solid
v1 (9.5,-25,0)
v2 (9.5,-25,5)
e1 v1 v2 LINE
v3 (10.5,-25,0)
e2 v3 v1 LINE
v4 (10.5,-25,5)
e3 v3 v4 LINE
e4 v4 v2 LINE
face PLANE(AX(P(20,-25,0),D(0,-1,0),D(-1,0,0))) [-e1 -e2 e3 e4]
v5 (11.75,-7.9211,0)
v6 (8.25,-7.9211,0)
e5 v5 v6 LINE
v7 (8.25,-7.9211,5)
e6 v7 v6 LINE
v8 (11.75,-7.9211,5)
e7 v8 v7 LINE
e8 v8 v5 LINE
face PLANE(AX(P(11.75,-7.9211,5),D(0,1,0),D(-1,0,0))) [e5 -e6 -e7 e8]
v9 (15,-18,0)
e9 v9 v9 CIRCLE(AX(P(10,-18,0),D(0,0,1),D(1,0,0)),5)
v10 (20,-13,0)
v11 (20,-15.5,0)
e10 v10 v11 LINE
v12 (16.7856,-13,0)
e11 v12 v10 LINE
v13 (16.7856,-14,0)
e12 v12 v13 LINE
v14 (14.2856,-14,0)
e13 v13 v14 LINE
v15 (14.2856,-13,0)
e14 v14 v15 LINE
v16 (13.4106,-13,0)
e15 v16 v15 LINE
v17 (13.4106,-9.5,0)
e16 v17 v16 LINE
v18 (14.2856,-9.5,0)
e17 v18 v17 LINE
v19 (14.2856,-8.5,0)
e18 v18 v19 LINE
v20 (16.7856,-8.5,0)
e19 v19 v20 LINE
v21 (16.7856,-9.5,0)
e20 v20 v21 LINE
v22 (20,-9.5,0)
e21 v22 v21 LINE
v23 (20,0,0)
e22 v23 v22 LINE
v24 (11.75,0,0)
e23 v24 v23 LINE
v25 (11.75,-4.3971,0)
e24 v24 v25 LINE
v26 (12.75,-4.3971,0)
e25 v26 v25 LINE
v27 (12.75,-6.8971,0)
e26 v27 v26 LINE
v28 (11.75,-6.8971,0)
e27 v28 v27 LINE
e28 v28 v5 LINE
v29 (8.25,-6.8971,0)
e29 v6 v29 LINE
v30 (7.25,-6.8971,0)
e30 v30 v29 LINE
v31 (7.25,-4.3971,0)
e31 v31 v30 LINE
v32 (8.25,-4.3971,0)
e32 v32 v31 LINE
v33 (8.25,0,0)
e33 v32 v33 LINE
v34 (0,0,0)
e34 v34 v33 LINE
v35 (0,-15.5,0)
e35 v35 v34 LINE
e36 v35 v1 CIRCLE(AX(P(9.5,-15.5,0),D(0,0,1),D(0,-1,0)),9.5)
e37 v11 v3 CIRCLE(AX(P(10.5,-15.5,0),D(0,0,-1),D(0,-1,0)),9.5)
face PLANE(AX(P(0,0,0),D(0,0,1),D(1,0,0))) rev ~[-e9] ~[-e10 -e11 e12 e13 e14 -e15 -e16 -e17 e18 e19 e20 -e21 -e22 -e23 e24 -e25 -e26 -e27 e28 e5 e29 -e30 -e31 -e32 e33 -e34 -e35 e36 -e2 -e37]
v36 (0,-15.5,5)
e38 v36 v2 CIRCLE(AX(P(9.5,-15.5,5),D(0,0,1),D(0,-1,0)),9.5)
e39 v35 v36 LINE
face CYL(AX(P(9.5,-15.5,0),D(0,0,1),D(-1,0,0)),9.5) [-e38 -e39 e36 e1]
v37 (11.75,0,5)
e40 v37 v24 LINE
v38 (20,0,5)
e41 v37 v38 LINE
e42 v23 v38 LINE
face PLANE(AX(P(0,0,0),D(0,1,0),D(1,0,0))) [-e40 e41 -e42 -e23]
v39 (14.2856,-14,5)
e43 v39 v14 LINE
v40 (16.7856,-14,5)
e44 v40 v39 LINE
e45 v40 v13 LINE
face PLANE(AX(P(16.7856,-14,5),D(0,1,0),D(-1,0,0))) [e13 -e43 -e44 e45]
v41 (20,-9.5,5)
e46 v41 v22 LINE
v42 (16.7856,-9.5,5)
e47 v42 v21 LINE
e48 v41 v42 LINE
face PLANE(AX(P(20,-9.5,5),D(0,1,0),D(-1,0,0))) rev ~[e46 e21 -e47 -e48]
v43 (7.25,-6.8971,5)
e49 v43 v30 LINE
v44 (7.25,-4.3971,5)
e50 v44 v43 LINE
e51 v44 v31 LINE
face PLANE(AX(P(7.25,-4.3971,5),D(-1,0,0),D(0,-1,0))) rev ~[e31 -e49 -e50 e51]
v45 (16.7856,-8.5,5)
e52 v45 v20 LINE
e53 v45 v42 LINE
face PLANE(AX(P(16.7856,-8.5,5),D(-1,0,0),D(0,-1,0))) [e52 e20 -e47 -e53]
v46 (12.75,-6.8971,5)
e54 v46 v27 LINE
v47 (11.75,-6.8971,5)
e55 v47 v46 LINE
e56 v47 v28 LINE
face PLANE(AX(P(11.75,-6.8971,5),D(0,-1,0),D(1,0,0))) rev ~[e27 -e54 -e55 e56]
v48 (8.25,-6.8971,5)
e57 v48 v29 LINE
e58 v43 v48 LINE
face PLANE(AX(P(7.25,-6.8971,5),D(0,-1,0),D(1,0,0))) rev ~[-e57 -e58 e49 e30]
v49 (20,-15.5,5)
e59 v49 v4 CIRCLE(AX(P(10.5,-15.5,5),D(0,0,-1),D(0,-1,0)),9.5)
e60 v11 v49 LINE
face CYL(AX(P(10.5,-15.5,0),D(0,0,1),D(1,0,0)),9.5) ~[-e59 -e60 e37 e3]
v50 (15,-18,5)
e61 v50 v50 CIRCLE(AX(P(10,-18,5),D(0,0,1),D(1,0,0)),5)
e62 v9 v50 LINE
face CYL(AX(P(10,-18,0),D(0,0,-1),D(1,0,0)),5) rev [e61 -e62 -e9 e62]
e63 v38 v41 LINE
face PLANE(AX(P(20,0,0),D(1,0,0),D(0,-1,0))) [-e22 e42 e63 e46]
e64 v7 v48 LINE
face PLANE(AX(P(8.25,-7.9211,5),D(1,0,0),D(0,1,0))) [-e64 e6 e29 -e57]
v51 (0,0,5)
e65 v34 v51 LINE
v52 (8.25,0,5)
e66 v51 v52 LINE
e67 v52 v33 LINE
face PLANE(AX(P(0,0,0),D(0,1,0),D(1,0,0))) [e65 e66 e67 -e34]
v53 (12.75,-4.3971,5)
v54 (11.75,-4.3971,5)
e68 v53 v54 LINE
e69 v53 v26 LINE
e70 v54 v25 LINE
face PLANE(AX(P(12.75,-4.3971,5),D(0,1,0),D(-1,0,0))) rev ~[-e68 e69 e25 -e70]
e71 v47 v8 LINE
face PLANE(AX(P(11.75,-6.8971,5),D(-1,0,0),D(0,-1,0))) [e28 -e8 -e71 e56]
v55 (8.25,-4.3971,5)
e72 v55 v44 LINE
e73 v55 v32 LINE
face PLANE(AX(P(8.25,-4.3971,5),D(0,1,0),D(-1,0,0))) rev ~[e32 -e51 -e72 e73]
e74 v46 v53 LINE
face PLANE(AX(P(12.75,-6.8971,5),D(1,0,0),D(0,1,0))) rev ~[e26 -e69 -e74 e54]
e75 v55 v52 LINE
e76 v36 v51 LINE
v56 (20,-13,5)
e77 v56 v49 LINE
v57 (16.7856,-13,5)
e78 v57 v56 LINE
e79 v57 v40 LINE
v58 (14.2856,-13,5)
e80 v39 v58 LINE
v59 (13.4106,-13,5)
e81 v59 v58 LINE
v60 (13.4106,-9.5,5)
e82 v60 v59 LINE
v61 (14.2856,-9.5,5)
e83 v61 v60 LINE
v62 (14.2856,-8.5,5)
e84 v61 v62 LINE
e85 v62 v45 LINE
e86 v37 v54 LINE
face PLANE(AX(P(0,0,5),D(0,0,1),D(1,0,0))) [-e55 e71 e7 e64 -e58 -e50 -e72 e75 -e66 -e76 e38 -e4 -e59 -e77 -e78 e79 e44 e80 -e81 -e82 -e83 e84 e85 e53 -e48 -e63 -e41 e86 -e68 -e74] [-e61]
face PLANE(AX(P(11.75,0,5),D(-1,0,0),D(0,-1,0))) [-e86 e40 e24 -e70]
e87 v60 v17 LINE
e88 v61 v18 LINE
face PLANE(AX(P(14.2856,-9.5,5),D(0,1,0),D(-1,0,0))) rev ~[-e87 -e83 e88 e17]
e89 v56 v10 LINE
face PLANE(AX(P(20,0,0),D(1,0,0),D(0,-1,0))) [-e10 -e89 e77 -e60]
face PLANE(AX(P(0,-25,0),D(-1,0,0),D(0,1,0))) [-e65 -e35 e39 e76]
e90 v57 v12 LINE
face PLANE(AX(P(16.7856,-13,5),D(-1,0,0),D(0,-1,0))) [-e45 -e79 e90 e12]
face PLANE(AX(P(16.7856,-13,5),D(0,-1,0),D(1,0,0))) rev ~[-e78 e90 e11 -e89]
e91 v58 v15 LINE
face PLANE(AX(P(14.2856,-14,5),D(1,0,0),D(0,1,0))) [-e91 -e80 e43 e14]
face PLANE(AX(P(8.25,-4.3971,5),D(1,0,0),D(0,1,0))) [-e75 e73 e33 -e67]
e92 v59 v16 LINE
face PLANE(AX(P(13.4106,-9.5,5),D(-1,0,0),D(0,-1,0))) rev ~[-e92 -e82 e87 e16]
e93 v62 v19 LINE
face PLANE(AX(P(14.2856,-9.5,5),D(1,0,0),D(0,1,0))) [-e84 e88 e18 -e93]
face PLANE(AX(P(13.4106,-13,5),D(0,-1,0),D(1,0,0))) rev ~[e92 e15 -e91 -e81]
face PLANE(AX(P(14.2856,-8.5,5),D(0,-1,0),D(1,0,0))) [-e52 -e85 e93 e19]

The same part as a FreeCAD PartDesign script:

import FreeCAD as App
import Part
import Sketcher


def edges_at(feature, points):
    """Names of the edges that pass closest to the given points."""
    edges = feature.Shape.Edges
    near = lambda p: min(range(len(edges)), key=lambda i: edges[i].distToShape(Part.Vertex(*p))[0])
    return sorted({f"Edge{near(p) + 1}" for p in points})


def add_polygon(sketch, points):
    """Adds a closed chain of lines whose ends are joined by coincident constraints."""
    first, n = sketch.GeometryCount, len(points)
    for a, b in zip(points, points[1:] + points[:1]):
        sketch.addGeometry(Part.LineSegment(App.Vector(*a, 0), App.Vector(*b, 0)), False)
    for i in range(n):
        sketch.addConstraint(Sketcher.Constraint("Coincident", first + i, 2, first + (i + 1) % n, 1))

doc = App.newDocument("Part")
params = doc.addObject("Spreadsheet::Sheet", "Params")
for row, (alias, value) in enumerate([
    ("sketch1_width", "20 mm"),
    ("sketch1_height", "25 mm"),
    ("sketch1_diameter", "10 mm"),
    ("pad1_length", "5 mm"),
    ("sketch2_width", "1 mm"),
    ("sketch2_width2", "3.5 mm"),
    ("sketch2_height", "2.5 mm"),
    ("sketch3_height", "1 mm"),
    ("sketch3_width", "2.5 mm"),
    ("sketch3_height2", "3.5 mm"),
    ("fillet_radius", "9.5 mm"),
], start=1):
    params.set(f"A{row}", alias)
    params.set(f"B{row}", "=" + value)
    params.setAlias(f"B{row}", alias)

body = doc.addObject("PartDesign::Body", "Body")

sketch1 = body.newObject("Sketcher::SketchObject", "Sketch")
sketch1.AttachmentSupport = (doc.getObject("XY_Plane"), [""])
sketch1.MapMode = "FlatFace"
add_polygon(sketch1, [(20, 0), (0, 0), (0, -25), (20, -25)])
sketch1.addGeometry(Part.Circle(App.Vector(10, -18, 0), App.Vector(0, 0, 1), 5), False)
sketch1.addConstraint([
    Sketcher.Constraint("Horizontal", 0),
    Sketcher.Constraint("Vertical", 1),
    Sketcher.Constraint("Horizontal", 2),
    Sketcher.Constraint("Vertical", 3),
    Sketcher.Constraint("Coincident", 0, 2, -1, 1),
    Sketcher.Constraint("DistanceX", 0, 2, 0, 1, 20.0),
    Sketcher.Constraint("DistanceY", 1, 2, 1, 1, 25.0),
    Sketcher.Constraint("Diameter", 4, 10.0),
    Sketcher.Constraint("DistanceY", 1, 2, 4, 3, 7.0),
    Sketcher.Constraint("DistanceX", -1, 1, 4, 3, 10.0),
])
sketch1.setExpression("Constraints[9]", "Params.sketch1_width")
sketch1.setExpression("Constraints[10]", "Params.sketch1_height")
sketch1.setExpression("Constraints[11]", "Params.sketch1_diameter")
pad1 = body.newObject("PartDesign::Pad", "Pad")
pad1.Profile = sketch1
pad1.setExpression("Length", "Params.pad1_length")

sketch2 = body.newObject("Sketcher::SketchObject", "Sketch001")
sketch2.AttachmentSupport = (doc.getObject("XY_Plane"), [""])
sketch2.MapMode = "FlatFace"
sketch2.AttachmentOffset = App.Placement(App.Vector(0, 0, 5), App.Rotation())
add_polygon(sketch2, [(11.8, 0), (8.2, 0), (8.2, -4.4), (7.2, -4.4), (7.2, -6.9), (8.2, -6.9), (8.2, -7.9), (11.8, -7.9), (11.8, -6.9), (12.8, -6.9), (12.8, -4.4), (11.8, -4.4)])
sketch2.addConstraint([
    Sketcher.Constraint("Horizontal", 0),
    Sketcher.Constraint("Vertical", 1),
    Sketcher.Constraint("Horizontal", 2),
    Sketcher.Constraint("Vertical", 3),
    Sketcher.Constraint("Horizontal", 4),
    Sketcher.Constraint("Vertical", 5),
    Sketcher.Constraint("Horizontal", 6),
    Sketcher.Constraint("Vertical", 7),
    Sketcher.Constraint("Horizontal", 8),
    Sketcher.Constraint("Vertical", 9),
    Sketcher.Constraint("Horizontal", 10),
    Sketcher.Constraint("Vertical", 11),
    Sketcher.Constraint("PointOnObject", 0, 2, -1),
    Sketcher.Constraint("Horizontal", 4, 2, 7, 2),
    Sketcher.Constraint("Horizontal", 2, 2, 9, 2),
    Sketcher.Constraint("Vertical", 1, 2, 4, 2),
    Sketcher.Constraint("Vertical", 7, 2, 10, 2),
    Sketcher.Constraint("Equal", 4, 8),
    Sketcher.Constraint("DistanceX", 2, 2, 2, 1, 1.0),
    Sketcher.Constraint("DistanceX", 0, 2, 0, 1, 3.5),
    Sketcher.Constraint("DistanceY", 3, 2, 3, 1, 2.5),
    Sketcher.Constraint("DistanceY", 1, 2, 1, 1, 4.397),
    Sketcher.Constraint("DistanceY", 5, 2, 5, 1, 1.024),
    Sketcher.Constraint("DistanceX", -1, 1, 0, 2, 8.25),
])
sketch2.setExpression("Constraints[30]", "Params.sketch2_width")
sketch2.setExpression("Constraints[31]", "Params.sketch2_width2")
sketch2.setExpression("Constraints[32]", "Params.sketch2_height")
pocket1 = body.newObject("PartDesign::Pocket", "Pocket")
pocket1.Profile = sketch2
pocket1.Type = "ThroughAll"

sketch3 = body.newObject("Sketcher::SketchObject", "Sketch002")
sketch3.AttachmentSupport = (doc.getObject("XY_Plane"), [""])
sketch3.MapMode = "FlatFace"
sketch3.AttachmentOffset = App.Placement(App.Vector(0, 0, 5), App.Rotation())
add_polygon(sketch3, [(20, -13), (20, -9.5), (16.8, -9.5), (16.8, -8.5), (14.3, -8.5), (14.3, -9.5), (13.4, -9.5), (13.4, -13), (14.3, -13), (14.3, -14), (16.8, -14), (16.8, -13)])
sketch3.addConstraint([
    Sketcher.Constraint("Vertical", 0),
    Sketcher.Constraint("Horizontal", 1),
    Sketcher.Constraint("Vertical", 2),
    Sketcher.Constraint("Horizontal", 3),
    Sketcher.Constraint("Vertical", 4),
    Sketcher.Constraint("Horizontal", 5),
    Sketcher.Constraint("Vertical", 6),
    Sketcher.Constraint("Horizontal", 7),
    Sketcher.Constraint("Vertical", 8),
    Sketcher.Constraint("Horizontal", 9),
    Sketcher.Constraint("Vertical", 10),
    Sketcher.Constraint("Horizontal", 11),
    Sketcher.Constraint("Horizontal", 1, 2, 4, 2),
    Sketcher.Constraint("Horizontal", 7, 2, 10, 2),
    Sketcher.Constraint("Vertical", 4, 2, 7, 2),
    Sketcher.Constraint("Vertical", 2, 2, 9, 2),
    Sketcher.Constraint("Equal", 4, 8),
    Sketcher.Constraint("DistanceY", 2, 1, 2, 2, 1.0),
    Sketcher.Constraint("DistanceX", 3, 2, 3, 1, 2.5),
    Sketcher.Constraint("DistanceY", 0, 1, 0, 2, 3.5),
    Sketcher.Constraint("DistanceX", -1, 1, 0, 2, 20.0),
    Sketcher.Constraint("DistanceY", 6, 2, -1, 1, 13.0),
    Sketcher.Constraint("DistanceX", 5, 2, 5, 1, 0.875),
    Sketcher.Constraint("DistanceX", 1, 2, 1, 1, 3.2144),
])
sketch3.setExpression("Constraints[29]", "Params.sketch3_height")
sketch3.setExpression("Constraints[30]", "Params.sketch3_width")
sketch3.setExpression("Constraints[31]", "Params.sketch3_height2")
pocket2 = body.newObject("PartDesign::Pocket", "Pocket001")
pocket2.Profile = sketch3
pocket2.Type = "ThroughAll"
doc.recompute()

fillet = body.newObject("PartDesign::Fillet", "Fillet")
fillet.Base = (pocket2, edges_at(pocket2, [(0, -25, 2.5), (20, -25, 2.5)]))
fillet.setExpression("Radius", "Params.fillet_radius")

doc.recompute()
